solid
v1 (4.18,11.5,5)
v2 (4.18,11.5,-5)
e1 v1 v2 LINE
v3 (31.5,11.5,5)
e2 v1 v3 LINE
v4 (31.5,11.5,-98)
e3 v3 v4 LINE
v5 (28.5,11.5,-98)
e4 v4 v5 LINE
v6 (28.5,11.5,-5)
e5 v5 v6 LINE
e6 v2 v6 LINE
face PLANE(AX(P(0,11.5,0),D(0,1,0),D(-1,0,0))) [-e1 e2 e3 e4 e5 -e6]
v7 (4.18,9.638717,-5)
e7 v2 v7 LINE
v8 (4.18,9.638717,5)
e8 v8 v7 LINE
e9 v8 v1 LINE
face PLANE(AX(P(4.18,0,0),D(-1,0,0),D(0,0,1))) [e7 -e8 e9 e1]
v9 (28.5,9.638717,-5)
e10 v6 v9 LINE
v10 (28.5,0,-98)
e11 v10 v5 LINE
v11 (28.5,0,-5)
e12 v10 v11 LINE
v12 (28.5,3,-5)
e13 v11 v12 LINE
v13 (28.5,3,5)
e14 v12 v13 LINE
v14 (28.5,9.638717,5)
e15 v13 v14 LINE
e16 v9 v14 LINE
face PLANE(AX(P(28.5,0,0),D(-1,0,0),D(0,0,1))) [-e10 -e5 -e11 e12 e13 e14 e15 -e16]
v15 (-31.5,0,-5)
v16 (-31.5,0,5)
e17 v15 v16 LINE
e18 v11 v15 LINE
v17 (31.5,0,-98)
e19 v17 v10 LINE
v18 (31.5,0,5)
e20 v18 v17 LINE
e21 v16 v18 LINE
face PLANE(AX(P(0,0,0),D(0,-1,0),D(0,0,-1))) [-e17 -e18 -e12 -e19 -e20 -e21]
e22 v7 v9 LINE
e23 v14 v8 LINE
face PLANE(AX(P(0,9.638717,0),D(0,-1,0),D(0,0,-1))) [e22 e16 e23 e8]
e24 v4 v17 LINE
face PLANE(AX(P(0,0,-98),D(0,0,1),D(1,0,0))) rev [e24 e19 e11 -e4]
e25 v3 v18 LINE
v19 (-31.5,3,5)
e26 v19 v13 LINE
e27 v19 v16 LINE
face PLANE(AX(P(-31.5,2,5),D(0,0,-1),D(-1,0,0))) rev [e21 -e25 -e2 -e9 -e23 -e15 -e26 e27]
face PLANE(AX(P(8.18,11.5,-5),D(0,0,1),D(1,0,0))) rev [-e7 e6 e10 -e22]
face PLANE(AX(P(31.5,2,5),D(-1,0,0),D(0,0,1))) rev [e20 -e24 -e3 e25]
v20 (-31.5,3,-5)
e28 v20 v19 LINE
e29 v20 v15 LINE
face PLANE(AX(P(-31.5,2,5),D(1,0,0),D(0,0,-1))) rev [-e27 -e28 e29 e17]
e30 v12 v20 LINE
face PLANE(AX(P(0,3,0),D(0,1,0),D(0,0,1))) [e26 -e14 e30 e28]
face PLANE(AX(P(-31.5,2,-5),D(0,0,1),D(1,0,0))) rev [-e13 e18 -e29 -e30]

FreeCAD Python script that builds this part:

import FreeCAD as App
import Part
import Sketcher
Q = App.Units.Quantity

doc = App.newDocument("Part")
body = doc.addObject("PartDesign::Body", "Body")

# Sketch on XZ plane
sketch1 = body.newObject("Sketcher::SketchObject", "Sketch")
sketch1.AttachmentSupport = (doc.getObject("XZ_Plane"), [""])
sketch1.MapMode = "FlatFace"
sketch1.addGeometry([
    Part.LineSegment(App.Vector(-32, -5, 0), App.Vector(-32, 5, 0)),
    Part.LineSegment(App.Vector(-32, 5, 0), App.Vector(32, 5, 0)),
    Part.LineSegment(App.Vector(32, 5, 0), App.Vector(32, -5, 0)),
    Part.LineSegment(App.Vector(32, -5, 0), App.Vector(-32, -5, 0)),
], False)
sketch1.addConstraint([
    Sketcher.Constraint("Coincident", 0, 2, 1, 1),
    Sketcher.Constraint("Coincident", 1, 2, 2, 1),
    Sketcher.Constraint("Coincident", 2, 2, 3, 1),
    Sketcher.Constraint("Coincident", 3, 2, 0, 1),
    Sketcher.Constraint("Vertical", 0),
    Sketcher.Constraint("Horizontal", 1),
    Sketcher.Constraint("Vertical", 2),
    Sketcher.Constraint("Horizontal", 3),
    Sketcher.Constraint("Symmetric", 0, 2, 2, 2, -1, 1),
    Sketcher.Constraint("DistanceX", 1, 1, 1, 2, Q("63 mm")),
    Sketcher.Constraint("DistanceY", 0, 1, 0, 2, Q("10 mm")),
])
pad1 = body.newObject("PartDesign::Pad", "Pad")
pad1.Profile = sketch1
pad1.Length = 2
pad1.Reversed = True

# Sketch on XZ plane
sketch2 = body.newObject("Sketcher::SketchObject", "Sketch001")
sketch2.AttachmentSupport = (doc.getObject("XZ_Plane"), [""])
sketch2.MapMode = "FlatFace"
sketch2.AttachmentOffset = App.Placement(App.Vector(0, 0, -2), App.Rotation())
sketch2.addGeometry([
    Part.LineSegment(App.Vector(29.5, -5, 0), App.Vector(29.5, 5, 0)),
    Part.LineSegment(App.Vector(29.5, 5, 0), App.Vector(31.5, 5, 0)),
    Part.LineSegment(App.Vector(31.5, 5, 0), App.Vector(31.5, -5, 0)),
    Part.LineSegment(App.Vector(31.5, -5, 0), App.Vector(29.5, -5, 0)),
], False)
sketch2.addConstraint([
    Sketcher.Constraint("Coincident", 0, 2, 1, 1),
    Sketcher.Constraint("Coincident", 1, 2, 2, 1),
    Sketcher.Constraint("Coincident", 2, 2, 3, 1),
    Sketcher.Constraint("Coincident", 3, 2, 0, 1),
    Sketcher.Constraint("Vertical", 0),
    Sketcher.Constraint("Horizontal", 1),
    Sketcher.Constraint("Vertical", 2),
    Sketcher.Constraint("Horizontal", 3),
    Sketcher.Constraint("DistanceX", 1, 1, 1, 2, Q("2 mm")),
    Sketcher.Constraint("DistanceY", 0, 1, 0, 2, Q("10 mm")),
    Sketcher.Constraint("DistanceY", -1, 1, 0, 2, Q("5 mm")),
    Sketcher.Constraint("DistanceX", -1, 1, 0, 2, Q("29.5 mm")),
])
pad2 = body.newObject("PartDesign::Pad", "Pad001")
pad2.Profile = sketch2
pad2.Length = 93
pad2.Reversed = True

# Sketch on XZ plane
sketch3 = body.newObject("Sketcher::SketchObject", "Sketch002")
sketch3.AttachmentSupport = (doc.getObject("XZ_Plane"), [""])
sketch3.MapMode = "FlatFace"
sketch3.AttachmentOffset = App.Placement(App.Vector(0, 0, -2), App.Rotation())
sketch3.addGeometry([
    Part.LineSegment(App.Vector(-32, -5, 0), App.Vector(-32, 5, 0)),
    Part.LineSegment(App.Vector(-32, 5, 0), App.Vector(30, 5, 0)),
    Part.LineSegment(App.Vector(30, 5, 0), App.Vector(30, -5, 0)),
    Part.LineSegment(App.Vector(30, -5, 0), App.Vector(-32, -5, 0)),
], False)
sketch3.addConstraint([
    Sketcher.Constraint("Coincident", 0, 2, 1, 1),
    Sketcher.Constraint("Coincident", 1, 2, 2, 1),
    Sketcher.Constraint("Coincident", 2, 2, 3, 1),
    Sketcher.Constraint("Coincident", 3, 2, 0, 1),
    Sketcher.Constraint("Vertical", 0),
    Sketcher.Constraint("Horizontal", 1),
    Sketcher.Constraint("Vertical", 2),
    Sketcher.Constraint("Horizontal", 3),
    Sketcher.Constraint("DistanceX", 1, 1, 1, 2, Q("61 mm")),
    Sketcher.Constraint("DistanceY", 0, 1, 0, 2, Q("10 mm")),
    Sketcher.Constraint("DistanceY", -1, 1, 0, 2, Q("5 mm")),
    Sketcher.Constraint("DistanceX", 0, 2, -1, 1, Q("31.5 mm")),
])
pad3 = body.newObject("PartDesign::Pad", "Pad002")
pad3.Profile = sketch3
pad3.Length = 1
pad3.Reversed = True

# Sketch on YZ plane
sketch4 = body.newObject("Sketcher::SketchObject", "Sketch003")
sketch4.AttachmentSupport = (doc.getObject("YZ_Plane"), [""])
sketch4.MapMode = "FlatFace"
sketch4.AttachmentOffset = App.Placement(App.Vector(0, 0, 29.5), App.Rotation())
sketch4.addGeometry([
    Part.LineSegment(App.Vector(95, -5, 0), App.Vector(3, -5, 0)),
    Part.LineSegment(App.Vector(3, -5, 0), App.Vector(3, 5, 0)),
    Part.LineSegment(App.Vector(3, 5, 0), App.Vector(95, 5, 0)),
    Part.LineSegment(App.Vector(95, 5, 0), App.Vector(95, -5, 0)),
], False)
sketch4.addConstraint([
    Sketcher.Constraint("Coincident", 0, 2, 1, 1),
    Sketcher.Constraint("Coincident", 1, 2, 2, 1),
    Sketcher.Constraint("Coincident", 2, 2, 3, 1),
    Sketcher.Constraint("Coincident", 3, 2, 0, 1),
    Sketcher.Constraint("Horizontal", 0),
    Sketcher.Constraint("Vertical", 1),
    Sketcher.Constraint("Horizontal", 2),
    Sketcher.Constraint("Vertical", 3),
    Sketcher.Constraint("DistanceX", 0, 2, 0, 1, Q("92 mm")),
    Sketcher.Constraint("DistanceY", 1, 1, 1, 2, Q("10 mm")),
    Sketcher.Constraint("DistanceX", -1, 1, 0, 2, Q("3 mm")),
    Sketcher.Constraint("DistanceY", 0, 2, -1, 1, Q("5 mm")),
])
pad4 = body.newObject("PartDesign::Pad", "Pad003")
pad4.Profile = sketch4
pad4.Length = 1
pad4.Reversed = True

# Sketch on XY plane
sketch5 = body.newObject("Sketcher::SketchObject", "Sketch004")
sketch5.AttachmentSupport = (doc.getObject("XY_Plane"), [""])
sketch5.MapMode = "FlatFace"
sketch5.AttachmentOffset = App.Placement(App.Vector(0, 0, -5), App.Rotation())
sketch5.addGeometry([
    Part.LineSegment(App.Vector(31.5, 10, 0), App.Vector(31.5, 0, 0)),
    Part.LineSegment(App.Vector(31.5, 0, 0), App.Vector(28.5, 0, 0)),
    Part.LineSegment(App.Vector(28.5, 0, 0), App.Vector(28.5, 10, 0)),
    Part.LineSegment(App.Vector(28.5, 10, 0), App.Vector(31.5, 10, 0)),
], False)
sketch5.addConstraint([
    Sketcher.Constraint("Coincident", 0, 2, 1, 1),
    Sketcher.Constraint("Coincident", 1, 2, 2, 1),
    Sketcher.Constraint("Coincident", 2, 2, 3, 1),
    Sketcher.Constraint("Coincident", 3, 2, 0, 1),
    Sketcher.Constraint("Vertical", 0),
    Sketcher.Constraint("Horizontal", 1),
    Sketcher.Constraint("Vertical", 2),
    Sketcher.Constraint("Horizontal", 3),
    Sketcher.Constraint("PointOnObject", 0, 2, -1),
    Sketcher.Constraint("DistanceX", 1, 2, 1, 1, Q("3 mm")),
    Sketcher.Constraint("DistanceY", 0, 2, 0, 1, Q("10 mm")),
    Sketcher.Constraint("DistanceX", -1, 1, 0, 2, Q("31.5 mm")),
])
pad5 = body.newObject("PartDesign::Pad", "Pad004")
pad5.Profile = sketch5
pad5.Length = 93
pad5.Reversed = True

# Sketch on YZ plane
sketch6 = body.newObject("Sketcher::SketchObject", "Sketch005")
sketch6.AttachmentSupport = (doc.getObject("YZ_Plane"), [""])
sketch6.MapMode = "FlatFace"
sketch6.AttachmentOffset = App.Placement(App.Vector(0, 0, 28.5), App.Rotation())
sketch6.addGeometry([
    Part.LineSegment(App.Vector(112, -5, 0), App.Vector(10, -5, 0)),
    Part.LineSegment(App.Vector(10, -5, 0), App.Vector(10, 22, 0)),
    Part.LineSegment(App.Vector(10, 22, 0), App.Vector(112, 22, 0)),
    Part.LineSegment(App.Vector(112, 22, 0), App.Vector(112, -5, 0)),
], False)
sketch6.addConstraint([
    Sketcher.Constraint("Coincident", 0, 2, 1, 1),
    Sketcher.Constraint("Coincident", 1, 2, 2, 1),
    Sketcher.Constraint("Coincident", 2, 2, 3, 1),
    Sketcher.Constraint("Coincident", 3, 2, 0, 1),
    Sketcher.Constraint("Horizontal", 0),
    Sketcher.Constraint("Vertical", 1),
    Sketcher.Constraint("Horizontal", 2),
    Sketcher.Constraint("Vertical", 3),
    Sketcher.Constraint("DistanceX", -1, 1, 0, 2, Q("10 mm")),
    Sketcher.Constraint("DistanceY", 0, 2, -1, 1, Q("5 mm")),
    Sketcher.Constraint("DistanceX", 0, 2, 0, 1, Q("101.559657 mm")),
    Sketcher.Constraint("DistanceY", 1, 1, 1, 2, Q("26.594312 mm")),
])
pocket1 = body.newObject("PartDesign::Pocket", "Pocket")
pocket1.Profile = sketch6
pocket1.Length = 93
pocket1.Reversed = True

# Sketch on XZ plane
sketch7 = body.newObject("Sketcher::SketchObject", "Sketch006")
sketch7.AttachmentSupport = (doc.getObject("XZ_Plane"), [""])
sketch7.MapMode = "FlatFace"
sketch7.AttachmentOffset = App.Placement(App.Vector(0, 0, -10), App.Rotation())
sketch7.addGeometry([
    Part.LineSegment(App.Vector(28.5, -98, 0), App.Vector(28.5, 5, 0)),
    Part.LineSegment(App.Vector(28.5, 5, 0), App.Vector(31.5, 5, 0)),
    Part.LineSegment(App.Vector(31.5, 5, 0), App.Vector(31.5, -98, 0)),
    Part.LineSegment(App.Vector(31.5, -98, 0), App.Vector(28.5, -98, 0)),
], False)
sketch7.addConstraint([
    Sketcher.Constraint("Coincident", 0, 2, 1, 1),
    Sketcher.Constraint("Coincident", 1, 2, 2, 1),
    Sketcher.Constraint("Coincident", 2, 2, 3, 1),
    Sketcher.Constraint("Coincident", 3, 2, 0, 1),
    Sketcher.Constraint("Vertical", 0),
    Sketcher.Constraint("Horizontal", 1),
    Sketcher.Constraint("Vertical", 2),
    Sketcher.Constraint("Horizontal", 3),
    Sketcher.Constraint("DistanceX", 1, 1, 1, 2, Q("3 mm")),
    Sketcher.Constraint("DistanceY", 0, 1, 0, 2, Q("103 mm")),
    Sketcher.Constraint("DistanceY", -1, 1, 0, 2, Q("5 mm")),
    Sketcher.Constraint("DistanceX", -1, 1, 0, 2, Q("28.5 mm")),
])
pad6 = body.newObject("PartDesign::Pad", "Pad005")
pad6.Profile = sketch7
pad6.Length = 1.5
pad6.Reversed = True

# Sketch on YZ plane
sketch8 = body.newObject("Sketcher::SketchObject", "Sketch007")
sketch8.AttachmentSupport = (doc.getObject("YZ_Plane"), [""])
sketch8.MapMode = "FlatFace"
sketch8.AttachmentOffset = App.Placement(App.Vector(0, 0, 28.5), App.Rotation())
sketch8.addGeometry([
    Part.LineSegment(App.Vector(11.5, -5, 0), App.Vector(7.6, -5, 0)),
    Part.LineSegment(App.Vector(7.6, -5, 0), App.Vector(7.6, 5, 0)),
    Part.LineSegment(App.Vector(7.6, 5, 0), App.Vector(11.5, 5, 0)),
    Part.LineSegment(App.Vector(11.5, 5, 0), App.Vector(11.5, -5, 0)),
], False)
sketch8.addConstraint([
    Sketcher.Constraint("Coincident", 0, 2, 1, 1),
    Sketcher.Constraint("Coincident", 1, 2, 2, 1),
    Sketcher.Constraint("Coincident", 2, 2, 3, 1),
    Sketcher.Constraint("Coincident", 3, 2, 0, 1),
    Sketcher.Constraint("Horizontal", 0),
    Sketcher.Constraint("Vertical", 1),
    Sketcher.Constraint("Horizontal", 2),
    Sketcher.Constraint("Vertical", 3),
    Sketcher.Constraint("DistanceY", 1, 1, 1, 2, Q("10 mm")),
    Sketcher.Constraint("DistanceY", 0, 2, -1, 1, Q("5 mm")),
    Sketcher.Constraint("DistanceX", -1, 1, 2, 2, Q("11.5 mm")),
    Sketcher.Constraint("DistanceX", 0, 2, 0, 1, Q("3.861283 mm")),
])
pad7 = body.newObject("PartDesign::Pad", "Pad006")
pad7.Profile = sketch8
pad7.Length = 20.32
pad7.Reversed = True

# Sketch on YZ plane
sketch9 = body.newObject("Sketcher::SketchObject", "Sketch008")
sketch9.AttachmentSupport = (doc.getObject("YZ_Plane"), [""])
sketch9.MapMode = "FlatFace"
sketch9.AttachmentOffset = App.Placement(App.Vector(0, 0, 8.18), App.Rotation())
sketch9.addGeometry([
    Part.LineSegment(App.Vector(11.5, -5, 0), App.Vector(7.6, -5, 0)),
    Part.LineSegment(App.Vector(7.6, -5, 0), App.Vector(7.6, 5, 0)),
    Part.LineSegment(App.Vector(7.6, 5, 0), App.Vector(11.5, 5, 0)),
    Part.LineSegment(App.Vector(11.5, 5, 0), App.Vector(11.5, -5, 0)),
], False)
sketch9.addConstraint([
    Sketcher.Constraint("Coincident", 0, 2, 1, 1),
    Sketcher.Constraint("Coincident", 1, 2, 2, 1),
    Sketcher.Constraint("Coincident", 2, 2, 3, 1),
    Sketcher.Constraint("Coincident", 3, 2, 0, 1),
    Sketcher.Constraint("Horizontal", 0),
    Sketcher.Constraint("Vertical", 1),
    Sketcher.Constraint("Horizontal", 2),
    Sketcher.Constraint("Vertical", 3),
    Sketcher.Constraint("DistanceY", 1, 1, 1, 2, Q("10 mm")),
    Sketcher.Constraint("DistanceY", 0, 2, -1, 1, Q("5 mm")),
    Sketcher.Constraint("DistanceX", -1, 1, 2, 2, Q("11.5 mm")),
    Sketcher.Constraint("DistanceX", 0, 2, 0, 1, Q("3.861283 mm")),
])
pad8 = body.newObject("PartDesign::Pad", "Pad007")
pad8.Profile = sketch9
pad8.Length = 4
pad8.Reversed = True

# Sketch on XZ plane
sketch10 = body.newObject("Sketcher::SketchObject", "Sketch009")
sketch10.AttachmentSupport = (doc.getObject("XZ_Plane"), [""])
sketch10.MapMode = "FlatFace"
sketch10.AttachmentOffset = App.Placement(App.Vector(0, 0, -7.638717), App.Rotation())
sketch10.addGeometry([
    Part.LineSegment(App.Vector(4, 5, 0), App.Vector(4, -5, 0)),
    Part.LineSegment(App.Vector(4, -5, 0), App.Vector(28, -5, 0)),
    Part.LineSegment(App.Vector(28, -5, 0), App.Vector(28, 5, 0)),
    Part.LineSegment(App.Vector(28, 5, 0), App.Vector(4, 5, 0)),
], False)
sketch10.addConstraint([
    Sketcher.Constraint("Coincident", 0, 2, 1, 1),
    Sketcher.Constraint("Coincident", 1, 2, 2, 1),
    Sketcher.Constraint("Coincident", 2, 2, 3, 1),
    Sketcher.Constraint("Coincident", 3, 2, 0, 1),
    Sketcher.Constraint("Vertical", 0),
    Sketcher.Constraint("Horizontal", 1),
    Sketcher.Constraint("Vertical", 2),
    Sketcher.Constraint("Horizontal", 3),
    Sketcher.Constraint("DistanceY", 0, 2, 0, 1, Q("10 mm")),
    Sketcher.Constraint("DistanceY", 0, 2, -1, 1, Q("5 mm")),
    Sketcher.Constraint("DistanceX", 1, 1, 1, 2, Q("24.32 mm")),
    Sketcher.Constraint("DistanceX", -1, 1, 1, 2, Q("28.5 mm")),
])
pocket2 = body.newObject("PartDesign::Pocket", "Pocket001")
pocket2.Profile = sketch10
pocket2.Length = 2

doc.recompute()
